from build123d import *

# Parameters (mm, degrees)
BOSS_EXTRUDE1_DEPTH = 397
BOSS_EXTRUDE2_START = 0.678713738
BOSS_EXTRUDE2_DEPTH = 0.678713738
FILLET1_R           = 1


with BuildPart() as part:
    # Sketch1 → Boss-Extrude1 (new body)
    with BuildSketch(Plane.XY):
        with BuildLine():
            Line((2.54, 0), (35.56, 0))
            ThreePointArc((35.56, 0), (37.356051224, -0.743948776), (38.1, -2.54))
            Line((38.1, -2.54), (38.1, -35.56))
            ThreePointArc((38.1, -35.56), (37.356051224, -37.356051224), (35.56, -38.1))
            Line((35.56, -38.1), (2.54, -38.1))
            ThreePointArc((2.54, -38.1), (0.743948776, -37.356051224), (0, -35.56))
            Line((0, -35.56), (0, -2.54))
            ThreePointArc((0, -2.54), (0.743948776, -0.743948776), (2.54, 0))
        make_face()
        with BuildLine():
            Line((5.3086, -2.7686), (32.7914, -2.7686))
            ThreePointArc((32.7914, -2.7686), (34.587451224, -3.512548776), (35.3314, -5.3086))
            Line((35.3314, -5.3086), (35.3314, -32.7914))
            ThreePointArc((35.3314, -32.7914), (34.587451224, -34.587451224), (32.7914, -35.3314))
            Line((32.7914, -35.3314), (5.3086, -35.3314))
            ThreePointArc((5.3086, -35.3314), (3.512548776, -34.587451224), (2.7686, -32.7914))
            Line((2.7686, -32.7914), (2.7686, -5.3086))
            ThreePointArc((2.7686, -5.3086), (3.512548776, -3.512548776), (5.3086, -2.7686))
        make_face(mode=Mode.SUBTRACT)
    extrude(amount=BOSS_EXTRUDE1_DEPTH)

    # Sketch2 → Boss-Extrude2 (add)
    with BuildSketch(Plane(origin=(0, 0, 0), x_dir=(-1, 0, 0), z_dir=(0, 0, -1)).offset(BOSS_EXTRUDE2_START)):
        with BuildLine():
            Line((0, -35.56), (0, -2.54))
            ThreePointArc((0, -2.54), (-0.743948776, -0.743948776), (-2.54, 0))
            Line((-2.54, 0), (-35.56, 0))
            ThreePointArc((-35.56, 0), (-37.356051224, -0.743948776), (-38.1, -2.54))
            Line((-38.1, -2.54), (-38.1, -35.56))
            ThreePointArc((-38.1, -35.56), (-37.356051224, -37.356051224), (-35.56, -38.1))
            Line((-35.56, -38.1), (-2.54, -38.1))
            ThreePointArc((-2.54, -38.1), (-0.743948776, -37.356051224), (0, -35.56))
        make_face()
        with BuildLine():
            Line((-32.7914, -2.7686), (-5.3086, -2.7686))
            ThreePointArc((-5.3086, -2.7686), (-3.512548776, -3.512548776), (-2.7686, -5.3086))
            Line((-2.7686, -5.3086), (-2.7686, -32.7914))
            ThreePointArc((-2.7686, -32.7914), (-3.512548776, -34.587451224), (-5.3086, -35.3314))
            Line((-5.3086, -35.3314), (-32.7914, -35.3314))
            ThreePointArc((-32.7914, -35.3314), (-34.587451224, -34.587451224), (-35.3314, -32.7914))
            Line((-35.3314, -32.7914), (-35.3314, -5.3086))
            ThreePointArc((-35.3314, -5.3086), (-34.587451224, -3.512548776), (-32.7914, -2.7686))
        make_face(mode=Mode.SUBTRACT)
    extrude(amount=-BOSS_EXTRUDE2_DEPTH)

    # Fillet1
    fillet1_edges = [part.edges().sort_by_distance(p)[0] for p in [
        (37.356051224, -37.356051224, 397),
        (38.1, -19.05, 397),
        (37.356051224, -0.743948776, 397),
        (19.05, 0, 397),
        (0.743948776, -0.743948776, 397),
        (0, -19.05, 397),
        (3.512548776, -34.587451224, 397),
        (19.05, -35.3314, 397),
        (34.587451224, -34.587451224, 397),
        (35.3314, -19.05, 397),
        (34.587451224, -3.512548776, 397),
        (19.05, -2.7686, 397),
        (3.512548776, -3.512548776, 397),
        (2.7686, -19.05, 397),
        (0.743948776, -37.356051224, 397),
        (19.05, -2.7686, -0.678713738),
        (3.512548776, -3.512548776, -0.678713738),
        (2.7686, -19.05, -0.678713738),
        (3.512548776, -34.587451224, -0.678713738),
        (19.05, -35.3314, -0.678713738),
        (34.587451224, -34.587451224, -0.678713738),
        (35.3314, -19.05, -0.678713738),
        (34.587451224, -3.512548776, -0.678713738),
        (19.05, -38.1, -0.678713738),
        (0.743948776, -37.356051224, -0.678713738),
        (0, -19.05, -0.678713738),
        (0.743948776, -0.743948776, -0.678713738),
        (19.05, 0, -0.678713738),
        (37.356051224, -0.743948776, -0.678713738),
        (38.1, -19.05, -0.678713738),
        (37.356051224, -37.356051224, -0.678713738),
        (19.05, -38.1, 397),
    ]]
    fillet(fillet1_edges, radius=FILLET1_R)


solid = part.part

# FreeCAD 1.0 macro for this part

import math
import FreeCAD as App
import Part
import Sketcher

V = App.Vector
Q = App.Units.Quantity


def edges_at(feature, points):
    """Names of the edges that pass closest to the given points."""
    edges = feature.Shape.Edges
    near = lambda p: min(range(len(edges)), key=lambda i: edges[i].distToShape(Part.Vertex(*p))[0])
    return sorted({f"Edge{near(p) + 1}" for p in points})

doc = App.newDocument("Part")
body = doc.addObject("PartDesign::Body", "Body")

sketch1 = body.newObject("Sketcher::SketchObject", "Sketch")
sketch1.AttachmentSupport = (doc.getObject("XY_Plane"), [""])
sketch1.MapMode = "FlatFace"
sketch1.addGeometry([
    Part.LineSegment(V(35.6, 0, 0), V(2.5, 0, 0)),
    Part.ArcOfCircle(Part.Circle(V(2.5, -2.5, 0), V(0, 0, 1), 2.5), math.radians(90), math.radians(180)),
    Part.LineSegment(V(0, -2.5, 0), V(0, -35.6, 0)),
    Part.ArcOfCircle(Part.Circle(V(2.5, -35.6, 0), V(0, 0, 1), 2.5), math.radians(-180), math.radians(-90)),
    Part.LineSegment(V(2.5, -38.1, 0), V(35.6, -38.1, 0)),
    Part.ArcOfCircle(Part.Circle(V(35.6, -35.6, 0), V(0, 0, 1), 2.5), math.radians(-90), math.radians(0)),
    Part.LineSegment(V(38.1, -35.6, 0), V(38.1, -2.5, 0)),
    Part.ArcOfCircle(Part.Circle(V(35.6, -2.5, 0), V(0, 0, 1), 2.5), math.radians(0), math.radians(90)),
    Part.LineSegment(V(5.3, -2.8, 0), V(32.8, -2.8, 0)),
    Part.ArcOfCircle(Part.Circle(V(32.8, -5.3, 0), V(0, 0, 1), 2.5), math.radians(0), math.radians(90)),
    Part.LineSegment(V(35.3, -5.3, 0), V(35.3, -32.8, 0)),
    Part.ArcOfCircle(Part.Circle(V(32.8, -32.8, 0), V(0, 0, 1), 2.5), math.radians(-90), math.radians(0)),
    Part.LineSegment(V(32.8, -35.3, 0), V(5.3, -35.3, 0)),
    Part.ArcOfCircle(Part.Circle(V(5.3, -32.8, 0), V(0, 0, 1), 2.5), math.radians(-180), math.radians(-90)),
    Part.LineSegment(V(2.8, -32.8, 0), V(2.8, -5.3, 0)),
    Part.ArcOfCircle(Part.Circle(V(5.3, -5.3, 0), V(0, 0, 1), 2.5), math.radians(90), math.radians(180)),
], False)
sketch1.addConstraint([
    Sketcher.Constraint("Tangent", 0, 2, 1, 1),
    Sketcher.Constraint("Tangent", 1, 2, 2, 1),
    Sketcher.Constraint("Tangent", 2, 2, 3, 1),
    Sketcher.Constraint("Tangent", 3, 2, 4, 1),
    Sketcher.Constraint("Tangent", 4, 2, 5, 1),
    Sketcher.Constraint("Tangent", 5, 2, 6, 1),
    Sketcher.Constraint("Tangent", 6, 2, 7, 1),
    Sketcher.Constraint("Tangent", 7, 2, 0, 1),
    Sketcher.Constraint("Tangent", 8, 2, 9, 2),
    Sketcher.Constraint("Tangent", 9, 1, 10, 1),
    Sketcher.Constraint("Tangent", 10, 2, 11, 2),
    Sketcher.Constraint("Tangent", 11, 1, 12, 1),
    Sketcher.Constraint("Tangent", 12, 2, 13, 2),
    Sketcher.Constraint("Tangent", 13, 1, 14, 1),
    Sketcher.Constraint("Tangent", 14, 2, 15, 2),
    Sketcher.Constraint("Tangent", 15, 1, 8, 1),
    Sketcher.Constraint("Horizontal", 0),
    Sketcher.Constraint("Vertical", 2),
    Sketcher.Constraint("Horizontal", 4),
    Sketcher.Constraint("Vertical", 6),
    Sketcher.Constraint("Horizontal", 8),
    Sketcher.Constraint("Vertical", 10),
    Sketcher.Constraint("Horizontal", 12),
    Sketcher.Constraint("Vertical", 14),
    Sketcher.Constraint("Equal", 1, 3),
    Sketcher.Constraint("Equal", 3, 5),
    Sketcher.Constraint("Equal", 5, 7),
    Sketcher.Constraint("Equal", 7, 9),
    Sketcher.Constraint("Equal", 9, 11),
    Sketcher.Constraint("Equal", 11, 13),
    Sketcher.Constraint("Equal", 13, 15),
    Sketcher.Constraint("PointOnObject", 0, 2, -1),
    Sketcher.Constraint("PointOnObject", 1, 2, -2),
    Sketcher.Constraint("Equal", 4, 2),
    Sketcher.Constraint("Equal", 12, 10),
    Sketcher.Constraint("Radius", 1, Q("0.1 in")),
    Sketcher.Constraint("DistanceX", 0, 2, 0, 1, Q("1.3 in")),
    Sketcher.Constraint("DistanceX", 8, 1, 8, 2, Q("1.082 in")),
    Sketcher.Constraint("DistanceX", -1, 1, 9, 3, Q("1.291 in")),
    Sketcher.Constraint("DistanceY", 9, 3, -1, 1, Q("0.209 in")),
])
pad1 = body.newObject("PartDesign::Pad", "Pad")
pad1.Profile = sketch1
pad1.Length = 397

sketch2 = body.newObject("Sketcher::SketchObject", "Sketch001")
sketch2.AttachmentSupport = (doc.getObject("XY_Plane"), [""])
sketch2.MapMode = "FlatFace"
sketch2.AttachmentOffset = App.Placement(V(0, 0, -0.678714), App.Rotation())
sketch2.addGeometry([
    Part.LineSegment(V(0, -35.6, 0), V(0, -2.5, 0)),
    Part.ArcOfCircle(Part.Circle(V(2.5, -2.5, 0), V(0, 0, 1), 2.5), math.radians(90), math.radians(180)),
    Part.LineSegment(V(2.5, 0, 0), V(35.6, 0, 0)),
    Part.ArcOfCircle(Part.Circle(V(35.6, -2.5, 0), V(0, 0, 1), 2.5), math.radians(0), math.radians(90)),
    Part.LineSegment(V(38.1, -2.5, 0), V(38.1, -35.6, 0)),
    Part.ArcOfCircle(Part.Circle(V(35.6, -35.6, 0), V(0, 0, 1), 2.5), math.radians(-90), math.radians(0)),
    Part.LineSegment(V(35.6, -38.1, 0), V(2.5, -38.1, 0)),
    Part.ArcOfCircle(Part.Circle(V(2.5, -35.6, 0), V(0, 0, 1), 2.5), math.radians(-180), math.radians(-90)),
    Part.ArcOfCircle(Part.Circle(V(32.8, -5.3, 0), V(0, 0, 1), 2.5), math.radians(0), math.radians(90)),
    Part.LineSegment(V(32.8, -2.8, 0), V(5.3, -2.8, 0)),
    Part.ArcOfCircle(Part.Circle(V(5.3, -5.3, 0), V(0, 0, 1), 2.5), math.radians(90), math.radians(180)),
    Part.LineSegment(V(2.8, -5.3, 0), V(2.8, -32.8, 0)),
    Part.ArcOfCircle(Part.Circle(V(5.3, -32.8, 0), V(0, 0, 1), 2.5), math.radians(-180), math.radians(-90)),
    Part.LineSegment(V(5.3, -35.3, 0), V(32.8, -35.3, 0)),
    Part.ArcOfCircle(Part.Circle(V(32.8, -32.8, 0), V(0, 0, 1), 2.5), math.radians(-90), math.radians(0)),
    Part.LineSegment(V(35.3, -32.8, 0), V(35.3, -5.3, 0)),
], False)
sketch2.addConstraint([
    Sketcher.Constraint("Tangent", 0, 2, 1, 2),
    Sketcher.Constraint("Tangent", 1, 1, 2, 1),
    Sketcher.Constraint("Tangent", 2, 2, 3, 2),
    Sketcher.Constraint("Tangent", 3, 1, 4, 1),
    Sketcher.Constraint("Tangent", 4, 2, 5, 2),
    Sketcher.Constraint("Tangent", 5, 1, 6, 1),
    Sketcher.Constraint("Tangent", 6, 2, 7, 2),
    Sketcher.Constraint("Tangent", 7, 1, 0, 1),
    Sketcher.Constraint("Tangent", 8, 2, 9, 1),
    Sketcher.Constraint("Tangent", 9, 2, 10, 1),
    Sketcher.Constraint("Tangent", 10, 2, 11, 1),
    Sketcher.Constraint("Tangent", 11, 2, 12, 1),
    Sketcher.Constraint("Tangent", 12, 2, 13, 1),
    Sketcher.Constraint("Tangent", 13, 2, 14, 1),
    Sketcher.Constraint("Tangent", 14, 2, 15, 1),
    Sketcher.Constraint("Tangent", 15, 2, 8, 1),
    Sketcher.Constraint("Vertical", 0),
    Sketcher.Constraint("Horizontal", 2),
    Sketcher.Constraint("Vertical", 4),
    Sketcher.Constraint("Horizontal", 6),
    Sketcher.Constraint("Horizontal", 9),
    Sketcher.Constraint("Vertical", 11),
    Sketcher.Constraint("Horizontal", 13),
    Sketcher.Constraint("Vertical", 15),
    Sketcher.Constraint("Equal", 1, 3),
    Sketcher.Constraint("Equal", 3, 5),
    Sketcher.Constraint("Equal", 5, 7),
    Sketcher.Constraint("Equal", 7, 8),
    Sketcher.Constraint("Equal", 8, 10),
    Sketcher.Constraint("Equal", 10, 12),
    Sketcher.Constraint("Equal", 12, 14),
    Sketcher.Constraint("PointOnObject", 0, 2, -2),
    Sketcher.Constraint("PointOnObject", 1, 1, -1),
    Sketcher.Constraint("Equal", 6, 0),
    Sketcher.Constraint("Equal", 13, 11),
    Sketcher.Constraint("Radius", 1, Q("0.1 in")),
    Sketcher.Constraint("DistanceX", 2, 1, 2, 2, Q("1.3 in")),
    Sketcher.Constraint("DistanceX", 9, 2, 9, 1, Q("1.082 in")),
    Sketcher.Constraint("DistanceX", -1, 1, 8, 3, Q("1.291 in")),
    Sketcher.Constraint("DistanceY", 8, 3, -1, 1, Q("0.209 in")),
])
pad2 = body.newObject("PartDesign::Pad", "Pad001")
pad2.Profile = sketch2
pad2.Length = 0.678714
doc.recompute()

fillet = body.newObject("PartDesign::Fillet", "Fillet")
fillet.Base = (pad2, edges_at(pad2, [
    (37.356, -37.356, 397),
    (38.1, -19.05, 397),
    (37.356, -0.744, 397),
    (19.05, 0, 397),
    (0.744, -0.744, 397),
    (0, -19.05, 397),
    (3.513, -34.587, 397),
    (19.05, -35.331, 397),
    (34.587, -34.587, 397),
    (35.331, -19.05, 397),
    (34.587, -3.513, 397),
    (19.05, -2.769, 397),
    (3.513, -3.513, 397),
    (2.769, -19.05, 397),
    (0.744, -37.356, 397),
    (19.05, -2.769, -0.679),
    (3.513, -3.513, -0.679),
    (2.769, -19.05, -0.679),
    (3.513, -34.587, -0.679),
    (19.05, -35.331, -0.679),
    (34.587, -34.587, -0.679),
    (35.331, -19.05, -0.679),
    (34.587, -3.513, -0.679),
    (19.05, -38.1, -0.679),
    (0.744, -37.356, -0.679),
    (0, -19.05, -0.679),
    (0.744, -0.744, -0.679),
    (19.05, 0, -0.679),
    (37.356, -0.744, -0.679),
    (38.1, -19.05, -0.679),
    (37.356, -37.356, -0.679),
    (19.05, -38.1, 397),
]))
fillet.Radius = 1

doc.recompute()
